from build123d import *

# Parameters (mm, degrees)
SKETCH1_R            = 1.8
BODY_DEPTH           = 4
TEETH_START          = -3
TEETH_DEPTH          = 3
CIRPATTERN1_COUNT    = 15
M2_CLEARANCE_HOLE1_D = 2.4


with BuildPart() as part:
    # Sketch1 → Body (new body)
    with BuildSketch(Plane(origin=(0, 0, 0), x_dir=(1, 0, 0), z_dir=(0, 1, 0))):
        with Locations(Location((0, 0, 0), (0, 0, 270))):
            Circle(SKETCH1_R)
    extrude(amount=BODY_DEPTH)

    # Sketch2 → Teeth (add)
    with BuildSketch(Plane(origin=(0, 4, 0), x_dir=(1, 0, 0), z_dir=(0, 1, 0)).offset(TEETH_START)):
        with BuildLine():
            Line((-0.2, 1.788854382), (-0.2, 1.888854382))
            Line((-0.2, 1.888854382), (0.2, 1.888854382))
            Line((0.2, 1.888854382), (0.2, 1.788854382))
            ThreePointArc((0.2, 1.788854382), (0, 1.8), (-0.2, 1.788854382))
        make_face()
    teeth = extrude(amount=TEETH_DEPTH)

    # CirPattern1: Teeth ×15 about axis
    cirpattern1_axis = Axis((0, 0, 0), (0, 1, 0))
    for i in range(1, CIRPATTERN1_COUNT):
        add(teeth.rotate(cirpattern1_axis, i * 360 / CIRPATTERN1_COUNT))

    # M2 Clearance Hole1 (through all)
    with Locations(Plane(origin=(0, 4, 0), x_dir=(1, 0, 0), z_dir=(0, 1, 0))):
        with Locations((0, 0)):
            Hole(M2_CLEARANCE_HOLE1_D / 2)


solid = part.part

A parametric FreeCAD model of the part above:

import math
import FreeCAD as App
import Part
import Sketcher

doc = App.newDocument("Part")
body = doc.addObject("PartDesign::Body", "Body")

# Sketch on XZ plane
sketch1 = body.newObject("Sketcher::SketchObject", "Sketch")
sketch1.AttachmentSupport = (doc.getObject("XZ_Plane"), [""])
sketch1.MapMode = "FlatFace"
sketch1.addGeometry(Part.Circle(App.Vector(0, 0, 0), App.Vector(0, 0, 1), 1.8), False)
sketch1.addConstraint([
    Sketcher.Constraint("Coincident", 0, 3, -1, 1),
    Sketcher.Constraint("Diameter", 0, 3.6),
])
pad1 = body.newObject("PartDesign::Pad", "Pad")
pad1.Profile = sketch1
pad1.Length = 4
pad1.Reversed = True

# Sketch on XZ plane
sketch2 = body.newObject("Sketcher::SketchObject", "Sketch001")
sketch2.AttachmentSupport = (doc.getObject("XZ_Plane"), [""])
sketch2.MapMode = "FlatFace"
sketch2.AttachmentOffset = App.Placement(App.Vector(0, 0, -1), App.Rotation())
sketch2.addGeometry([
    Part.LineSegment(App.Vector(-0.2, -1.89, 0), App.Vector(-0.2, -1.79, 0)),
    Part.ArcOfCircle(Part.Circle(App.Vector(0, 0, 0), App.Vector(0, 0, 1), 1.8), math.radians(-96.38), math.radians(-83.62)),
    Part.LineSegment(App.Vector(0.2, -1.79, 0), App.Vector(0.2, -1.89, 0)),
    Part.LineSegment(App.Vector(0.2, -1.89, 0), App.Vector(-0.2, -1.89, 0)),
], False)
sketch2.addConstraint([
    Sketcher.Constraint("Coincident", 0, 2, 1, 1),
    Sketcher.Constraint("Coincident", 1, 2, 2, 1),
    Sketcher.Constraint("Coincident", 2, 2, 3, 1),
    Sketcher.Constraint("Coincident", 3, 2, 0, 1),
    Sketcher.Constraint("Vertical", 0),
    Sketcher.Constraint("Vertical", 2),
    Sketcher.Constraint("Horizontal", 3),
    Sketcher.Constraint("Coincident", 1, 3, -1, 1),
    Sketcher.Constraint("Horizontal", 0, 2, 1, 2),
    Sketcher.Constraint("Radius", 1, 1.8),
    Sketcher.Constraint("DistanceX", 3, 2, 3, 1, 0.4),
    Sketcher.Constraint("DistanceY", 0, 1, 0, 2, 0.1),
])
pad2 = body.newObject("PartDesign::Pad", "Pad001")
pad2.Profile = sketch2
pad2.Length = 3
pad2.Reversed = True
doc.recompute()

polarpattern = body.newObject("PartDesign::PolarPattern", "PolarPattern")
polarpattern.Originals = [pad2]
polarpattern.Axis = (doc.getObject("Y_Axis"), [""])
polarpattern.Angle = 360
polarpattern.Occurrences = 15
body.Tip = polarpattern

# Sketch on XZ plane
sketch3 = body.newObject("Sketcher::SketchObject", "Sketch002")
sketch3.AttachmentSupport = (doc.getObject("XZ_Plane"), [""])
sketch3.MapMode = "FlatFace"
sketch3.AttachmentOffset = App.Placement(App.Vector(0, 0, -4), App.Rotation())
sketch3.addGeometry(Part.Circle(App.Vector(0, 0, 0), App.Vector(0, 0, 1), 1.2), False)
sketch3.addConstraint([
    Sketcher.Constraint("Coincident", 0, 3, -1, 1),
    Sketcher.Constraint("Diameter", 0, 2.4),
])
doc.recompute()
hole = body.newObject("PartDesign::Hole", "Hole")
hole.Profile = sketch3
hole.ThreadType = "None"
hole.Diameter = 2.4
hole.DepthType = "ThroughAll"
hole.Reversed = True

doc.recompute()
